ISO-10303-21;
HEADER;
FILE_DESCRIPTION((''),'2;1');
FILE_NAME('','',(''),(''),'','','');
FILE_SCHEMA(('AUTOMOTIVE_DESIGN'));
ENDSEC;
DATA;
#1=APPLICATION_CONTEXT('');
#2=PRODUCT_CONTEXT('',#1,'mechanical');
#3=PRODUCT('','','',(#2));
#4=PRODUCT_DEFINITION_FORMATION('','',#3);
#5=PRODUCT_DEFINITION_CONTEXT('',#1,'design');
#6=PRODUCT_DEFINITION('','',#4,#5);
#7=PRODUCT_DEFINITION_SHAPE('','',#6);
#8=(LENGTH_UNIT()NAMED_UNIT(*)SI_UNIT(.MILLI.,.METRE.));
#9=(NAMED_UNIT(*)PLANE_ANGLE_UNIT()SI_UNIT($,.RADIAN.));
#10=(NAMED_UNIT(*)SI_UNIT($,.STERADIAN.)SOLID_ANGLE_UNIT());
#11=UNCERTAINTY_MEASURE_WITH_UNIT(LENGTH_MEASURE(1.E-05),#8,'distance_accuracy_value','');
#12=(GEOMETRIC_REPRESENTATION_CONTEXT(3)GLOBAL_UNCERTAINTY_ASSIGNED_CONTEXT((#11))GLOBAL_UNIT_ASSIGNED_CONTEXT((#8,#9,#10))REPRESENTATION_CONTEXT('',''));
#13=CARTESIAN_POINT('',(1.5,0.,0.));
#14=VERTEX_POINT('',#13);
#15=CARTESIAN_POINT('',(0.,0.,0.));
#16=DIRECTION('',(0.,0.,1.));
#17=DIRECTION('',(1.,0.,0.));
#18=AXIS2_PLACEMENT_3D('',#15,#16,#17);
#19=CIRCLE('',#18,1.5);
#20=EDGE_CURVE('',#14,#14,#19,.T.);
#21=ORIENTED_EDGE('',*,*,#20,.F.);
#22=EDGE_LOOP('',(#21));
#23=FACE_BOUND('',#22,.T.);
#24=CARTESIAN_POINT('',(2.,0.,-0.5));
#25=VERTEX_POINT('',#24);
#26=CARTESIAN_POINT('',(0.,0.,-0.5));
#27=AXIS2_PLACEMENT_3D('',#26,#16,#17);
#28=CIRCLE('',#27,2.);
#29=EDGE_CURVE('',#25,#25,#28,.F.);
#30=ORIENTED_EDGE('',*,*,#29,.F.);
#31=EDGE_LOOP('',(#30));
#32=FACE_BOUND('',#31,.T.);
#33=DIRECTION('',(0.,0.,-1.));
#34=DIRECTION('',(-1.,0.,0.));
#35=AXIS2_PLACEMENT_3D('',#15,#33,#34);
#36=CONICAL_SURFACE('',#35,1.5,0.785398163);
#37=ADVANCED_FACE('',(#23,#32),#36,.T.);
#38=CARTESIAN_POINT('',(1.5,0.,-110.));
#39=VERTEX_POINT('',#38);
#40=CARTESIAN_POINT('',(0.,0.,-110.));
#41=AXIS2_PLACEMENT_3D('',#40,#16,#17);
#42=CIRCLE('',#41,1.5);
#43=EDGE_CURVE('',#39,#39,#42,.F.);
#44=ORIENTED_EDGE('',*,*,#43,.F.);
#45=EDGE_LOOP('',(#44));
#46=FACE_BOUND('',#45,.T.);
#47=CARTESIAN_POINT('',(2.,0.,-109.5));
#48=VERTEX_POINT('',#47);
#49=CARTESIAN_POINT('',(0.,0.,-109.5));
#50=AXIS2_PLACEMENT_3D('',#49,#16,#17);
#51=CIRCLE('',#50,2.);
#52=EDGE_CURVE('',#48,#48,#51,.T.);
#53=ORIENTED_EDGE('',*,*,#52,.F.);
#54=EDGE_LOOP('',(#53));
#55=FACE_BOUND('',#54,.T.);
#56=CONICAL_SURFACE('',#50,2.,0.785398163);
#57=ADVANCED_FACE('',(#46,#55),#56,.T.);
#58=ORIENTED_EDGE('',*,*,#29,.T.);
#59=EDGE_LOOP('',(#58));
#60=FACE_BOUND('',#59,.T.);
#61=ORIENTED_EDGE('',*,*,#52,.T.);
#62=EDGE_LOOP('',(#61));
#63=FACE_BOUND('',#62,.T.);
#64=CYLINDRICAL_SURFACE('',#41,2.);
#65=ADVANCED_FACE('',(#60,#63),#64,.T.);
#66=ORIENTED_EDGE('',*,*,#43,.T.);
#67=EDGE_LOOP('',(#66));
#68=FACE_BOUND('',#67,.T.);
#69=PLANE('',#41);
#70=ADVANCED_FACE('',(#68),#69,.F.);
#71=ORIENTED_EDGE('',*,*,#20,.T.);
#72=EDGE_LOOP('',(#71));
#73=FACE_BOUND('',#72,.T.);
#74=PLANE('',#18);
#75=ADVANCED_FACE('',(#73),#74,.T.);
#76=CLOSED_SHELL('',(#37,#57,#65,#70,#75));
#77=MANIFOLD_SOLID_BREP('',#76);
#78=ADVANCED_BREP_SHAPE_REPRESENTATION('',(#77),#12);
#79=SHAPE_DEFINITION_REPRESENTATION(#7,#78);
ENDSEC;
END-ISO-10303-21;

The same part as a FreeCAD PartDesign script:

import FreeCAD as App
import Part
import Sketcher
from FreeCAD import Vector


def edges_at(feature, points):
    """Names of the edges that pass closest to the given points."""
    edges = feature.Shape.Edges
    near = lambda p: min(range(len(edges)), key=lambda i: edges[i].distToShape(Part.Vertex(*p))[0])
    return sorted({f"Edge{near(p) + 1}" for p in points})

doc = App.newDocument("Part")
body = doc.addObject("PartDesign::Body", "Body")

# Sketch on XY plane
sketch1 = body.newObject("Sketcher::SketchObject", "Sketch")
sketch1.AttachmentSupport = (doc.getObject("XY_Plane"), [""])
sketch1.MapMode = "FlatFace"
sketch1.addGeometry(Part.Circle(Vector(0, 0, 0), Vector(0, 0, 1), 2), False)
sketch1.addConstraint([
    Sketcher.Constraint("Coincident", 0, 3, -1, 1),
    Sketcher.Constraint("Diameter", 0, 4.0),
])
pad1 = body.newObject("PartDesign::Pad", "Pad")
pad1.Profile = sketch1
pad1.Length = 110
pad1.Reversed = True
doc.recompute()

chamfer = body.newObject("PartDesign::Chamfer", "Chamfer")
chamfer.Base = (pad1, edges_at(pad1, [(-2, 0, 0), (-2, 0, -110)]))
chamfer.Size = 0.5

doc.recompute()
